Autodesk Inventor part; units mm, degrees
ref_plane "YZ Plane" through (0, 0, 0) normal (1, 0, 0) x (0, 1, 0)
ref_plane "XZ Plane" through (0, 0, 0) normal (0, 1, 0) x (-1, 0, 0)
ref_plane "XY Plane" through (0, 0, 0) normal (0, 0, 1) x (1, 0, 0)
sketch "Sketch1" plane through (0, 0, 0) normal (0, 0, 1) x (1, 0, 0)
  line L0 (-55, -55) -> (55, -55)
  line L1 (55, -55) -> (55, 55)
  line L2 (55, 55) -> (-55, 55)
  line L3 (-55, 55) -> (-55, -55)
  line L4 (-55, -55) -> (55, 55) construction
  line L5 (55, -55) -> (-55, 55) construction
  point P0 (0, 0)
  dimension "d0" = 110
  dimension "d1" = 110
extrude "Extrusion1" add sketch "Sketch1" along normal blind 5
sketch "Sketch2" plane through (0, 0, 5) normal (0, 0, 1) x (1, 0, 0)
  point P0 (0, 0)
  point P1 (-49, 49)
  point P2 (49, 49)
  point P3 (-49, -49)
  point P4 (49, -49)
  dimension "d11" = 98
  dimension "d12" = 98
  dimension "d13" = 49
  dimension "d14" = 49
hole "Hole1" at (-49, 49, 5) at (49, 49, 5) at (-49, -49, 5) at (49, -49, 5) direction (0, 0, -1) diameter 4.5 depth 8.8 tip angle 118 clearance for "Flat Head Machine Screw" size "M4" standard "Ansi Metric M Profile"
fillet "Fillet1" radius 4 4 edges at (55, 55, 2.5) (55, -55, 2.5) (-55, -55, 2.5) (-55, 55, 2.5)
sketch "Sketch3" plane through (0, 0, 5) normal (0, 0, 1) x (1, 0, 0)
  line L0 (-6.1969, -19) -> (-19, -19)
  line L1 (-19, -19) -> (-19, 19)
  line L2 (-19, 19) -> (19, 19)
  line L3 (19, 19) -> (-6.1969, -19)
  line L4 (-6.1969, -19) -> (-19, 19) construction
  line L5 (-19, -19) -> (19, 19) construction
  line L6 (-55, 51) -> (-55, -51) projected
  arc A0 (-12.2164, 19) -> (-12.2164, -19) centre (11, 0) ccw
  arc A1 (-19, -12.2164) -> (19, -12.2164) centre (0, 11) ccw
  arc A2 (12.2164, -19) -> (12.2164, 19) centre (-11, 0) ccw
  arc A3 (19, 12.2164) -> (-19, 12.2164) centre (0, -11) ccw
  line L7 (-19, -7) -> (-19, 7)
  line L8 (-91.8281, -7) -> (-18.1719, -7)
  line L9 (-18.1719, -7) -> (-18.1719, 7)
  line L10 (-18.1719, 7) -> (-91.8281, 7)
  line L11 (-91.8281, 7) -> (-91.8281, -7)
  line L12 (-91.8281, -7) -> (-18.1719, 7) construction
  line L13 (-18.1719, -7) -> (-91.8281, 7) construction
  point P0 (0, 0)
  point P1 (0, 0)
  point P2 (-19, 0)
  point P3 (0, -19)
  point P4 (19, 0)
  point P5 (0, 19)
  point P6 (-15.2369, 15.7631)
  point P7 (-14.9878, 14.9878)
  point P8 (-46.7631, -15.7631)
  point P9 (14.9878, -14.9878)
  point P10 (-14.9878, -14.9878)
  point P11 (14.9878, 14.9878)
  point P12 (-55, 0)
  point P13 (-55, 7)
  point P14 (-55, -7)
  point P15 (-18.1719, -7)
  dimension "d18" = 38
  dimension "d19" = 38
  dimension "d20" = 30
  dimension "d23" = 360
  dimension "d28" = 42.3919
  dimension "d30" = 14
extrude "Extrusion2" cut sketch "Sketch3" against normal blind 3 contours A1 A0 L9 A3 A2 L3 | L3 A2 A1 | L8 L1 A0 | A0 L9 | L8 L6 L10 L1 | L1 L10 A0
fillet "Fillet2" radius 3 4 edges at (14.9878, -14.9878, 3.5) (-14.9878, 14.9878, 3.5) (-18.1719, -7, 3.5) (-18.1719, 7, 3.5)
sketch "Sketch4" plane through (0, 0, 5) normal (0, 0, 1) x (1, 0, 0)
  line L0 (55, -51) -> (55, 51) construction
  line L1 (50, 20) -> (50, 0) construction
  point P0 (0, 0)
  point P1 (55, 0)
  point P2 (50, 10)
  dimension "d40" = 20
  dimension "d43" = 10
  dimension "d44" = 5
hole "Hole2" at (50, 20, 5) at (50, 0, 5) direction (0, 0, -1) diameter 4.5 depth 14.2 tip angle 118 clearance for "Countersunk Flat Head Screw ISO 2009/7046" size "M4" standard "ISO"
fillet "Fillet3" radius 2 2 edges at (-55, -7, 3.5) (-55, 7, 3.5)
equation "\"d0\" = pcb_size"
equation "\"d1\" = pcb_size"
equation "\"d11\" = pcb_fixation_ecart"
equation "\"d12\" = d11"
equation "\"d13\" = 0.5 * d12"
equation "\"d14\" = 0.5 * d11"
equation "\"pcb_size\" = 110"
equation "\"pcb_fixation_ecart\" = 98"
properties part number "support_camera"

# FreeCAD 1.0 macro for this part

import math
import FreeCAD as App
import Part
import Sketcher


def edges_at(feature, points):
    """Names of the edges that pass closest to the given points."""
    edges = feature.Shape.Edges
    near = lambda p: min(range(len(edges)), key=lambda i: edges[i].distToShape(Part.Vertex(*p))[0])
    return sorted({f"Edge{near(p) + 1}" for p in points})

doc = App.newDocument("Part")
params = doc.addObject("Spreadsheet::Sheet", "Params")
for row, (alias, value) in enumerate([
    ("sketch1_width", "110 mm"),
    ("pad1_length", "5 mm"),
    ("sketch2_diameter", "4.5 mm"),
    ("hole_diameter", "4.5 mm"),
    ("hole_depth", "8.8 mm"),
    ("fillet_radius", "4 mm"),
    ("sketch3_radius", "30 mm"),
    ("sketch3_height", "14 mm"),
    ("pocket1_length", "3 mm"),
    ("fillet2_radius", "3 mm"),
    ("sketch4_diameter", "4.5 mm"),
    ("hole2_diameter", "4.5 mm"),
    ("hole2_depth", "14.2 mm"),
    ("fillet3_radius", "2 mm"),
], start=1):
    params.set(f"A{row}", alias)
    params.set(f"B{row}", "=" + value)
    params.setAlias(f"B{row}", alias)

body = doc.addObject("PartDesign::Body", "Body")

# Sketch on XY plane
sketch1 = doc.addObject("Sketcher::SketchObject", "Sketch")
body.addObject(sketch1)
sketch1.AttachmentSupport = (doc.XY_Plane, [""])
sketch1.MapMode = "FlatFace"
sketch1.addGeometry([
    Part.LineSegment(App.Vector(-55, 55, 0), App.Vector(-55, -55, 0)),
    Part.LineSegment(App.Vector(-55, -55, 0), App.Vector(55, -55, 0)),
    Part.LineSegment(App.Vector(55, -55, 0), App.Vector(55, 55, 0)),
    Part.LineSegment(App.Vector(55, 55, 0), App.Vector(-55, 55, 0)),
], False)
sketch1.addConstraint([
    Sketcher.Constraint("Coincident", 0, 2, 1, 1),
    Sketcher.Constraint("Coincident", 1, 2, 2, 1),
    Sketcher.Constraint("Coincident", 2, 2, 3, 1),
    Sketcher.Constraint("Coincident", 3, 2, 0, 1),
    Sketcher.Constraint("Vertical", 0),
    Sketcher.Constraint("Horizontal", 1),
    Sketcher.Constraint("Vertical", 2),
    Sketcher.Constraint("Horizontal", 3),
    Sketcher.Constraint("Symmetric", 0, 2, 2, 2, -1, 1),
    Sketcher.Constraint("Equal", 3, 0),
    Sketcher.Constraint("DistanceX", 1, 1, 1, 2, 110.0),
])
sketch1.setExpression("Constraints[10]", "Params.sketch1_width")
pad1 = doc.addObject("PartDesign::Pad", "Pad")
body.addObject(pad1)
pad1.Profile = sketch1
pad1.setExpression("Length", "Params.pad1_length")

# Sketch on XY plane
sketch2 = doc.addObject("Sketcher::SketchObject", "Sketch001")
body.addObject(sketch2)
sketch2.AttachmentSupport = (doc.XY_Plane, [""])
sketch2.MapMode = "FlatFace"
sketch2.AttachmentOffset = App.Placement(App.Vector(0, 0, 5), App.Rotation())
sketch2.addGeometry([
    Part.Circle(App.Vector(-49, 49, 0), App.Vector(0, 0, 1), 2.2),
    Part.Circle(App.Vector(49, 49, 0), App.Vector(0, 0, 1), 2.2),
    Part.Circle(App.Vector(-49, -49, 0), App.Vector(0, 0, 1), 2.2),
    Part.Circle(App.Vector(49, -49, 0), App.Vector(0, 0, 1), 2.2),
], False)
sketch2.addConstraint([
    Sketcher.Constraint("Equal", 0, 1),
    Sketcher.Constraint("Equal", 1, 2),
    Sketcher.Constraint("Equal", 2, 3),
    Sketcher.Constraint("Symmetric", 1, 3, 2, 3, -1, 1),
    Sketcher.Constraint("Symmetric", 0, 3, 3, 3, -1, 1),
    Sketcher.Constraint("Symmetric", 0, 3, 1, 3, -2),
    Sketcher.Constraint("Diameter", 0, 4.5),
    Sketcher.Constraint("DistanceX", 0, 3, -1, 1, 49.0),
    Sketcher.Constraint("DistanceY", -1, 1, 0, 3, 49.0),
])
sketch2.setExpression("Constraints[6]", "Params.sketch2_diameter")
doc.recompute()
hole = doc.addObject("PartDesign::Hole", "Hole")
body.addObject(hole)
hole.Profile = sketch2
hole.ThreadType = "None"
hole.setExpression("Diameter", "Params.hole_diameter")
hole.DepthType = "Dimension"
hole.setExpression("Depth", "Params.hole_depth")
hole.DrillPoint = "Angled"
hole.DrillPointAngle = 118
doc.recompute()

fillet = doc.addObject("PartDesign::Fillet", "Fillet")
body.addObject(fillet)
fillet.Base = (hole, edges_at(hole, [
    (55, 55, 2.5),
    (55, -55, 2.5),
    (-55, -55, 2.5),
    (-55, 55, 2.5),
]))
fillet.setExpression("Radius", "Params.fillet_radius")

# Sketch on XY plane
sketch3 = doc.addObject("Sketcher::SketchObject", "Sketch002")
body.addObject(sketch3)
sketch3.AttachmentSupport = (doc.XY_Plane, [""])
sketch3.MapMode = "FlatFace"
sketch3.AttachmentOffset = App.Placement(App.Vector(0, 0, 5), App.Rotation())
sketch3.addGeometry([
    Part.ArcOfCircle(Part.Circle(App.Vector(0, 11, 0), App.Vector(0, 0, 1), 30), math.radians(-120), math.radians(-60)),  # 0
    Part.ArcOfCircle(Part.Circle(App.Vector(-11, 0, 0), App.Vector(0, 0, 1), 30), math.radians(-30), math.radians(30)),  # 1
    Part.ArcOfCircle(Part.Circle(App.Vector(0, -11, 0), App.Vector(0, 0, 1), 30), math.radians(60), math.radians(120)),  # 2
    Part.ArcOfCircle(Part.Circle(App.Vector(11, 0, 0), App.Vector(0, 0, 1), 30), math.radians(150.03), math.radians(166.51)),  # 3
    Part.LineSegment(App.Vector(-18, 7, 0), App.Vector(-55, 7, 0)),  # 4
    Part.LineSegment(App.Vector(-55, 7, 0), App.Vector(-55, -7, 0)),  # 5
    Part.LineSegment(App.Vector(-55, -7, 0), App.Vector(-18, -7, 0)),  # 6
    Part.ArcOfCircle(Part.Circle(App.Vector(11, 0, 0), App.Vector(0, 0, 1), 30), math.radians(-166.51), math.radians(-150.03)),  # 7
], False)
sketch3.addConstraint([
    Sketcher.Constraint("Coincident", 0, 2, 1, 1),
    Sketcher.Constraint("Coincident", 1, 2, 2, 1),
    Sketcher.Constraint("Coincident", 2, 2, 3, 1),
    Sketcher.Constraint("Coincident", 3, 2, 4, 1),
    Sketcher.Constraint("Coincident", 4, 2, 5, 1),
    Sketcher.Constraint("Coincident", 5, 2, 6, 1),
    Sketcher.Constraint("Coincident", 6, 2, 7, 1),
    Sketcher.Constraint("Coincident", 7, 2, 0, 1),
    Sketcher.Constraint("Horizontal", 4),
    Sketcher.Constraint("Vertical", 5),
    Sketcher.Constraint("Horizontal", 6),
    Sketcher.Constraint("Coincident", 7, 3, 3, 3),
    Sketcher.Constraint("Equal", 0, 1),
    Sketcher.Constraint("Equal", 1, 2),
    Sketcher.Constraint("Equal", 2, 3),
    Sketcher.Constraint("Equal", 3, 7),
    Sketcher.Constraint("Symmetric", 0, 3, 2, 3, -1, 1),
    Sketcher.Constraint("Symmetric", 1, 3, 3, 3, -1, 1),
    Sketcher.Constraint("Symmetric", 1, 2, 2, 2, -2),
    Sketcher.Constraint("Vertical", 3, 2, 6, 2),
    Sketcher.Constraint("Radius", 0, 30.0),
    Sketcher.Constraint("DistanceY", 5, 2, 5, 1, 14.0),
    Sketcher.Constraint("DistanceY", -1, 1, 0, 3, 11.0),
    Sketcher.Constraint("DistanceX", 1, 3, -1, 1, 11.0),
    Sketcher.Constraint("DistanceX", 4, 2, -1, 1, 55.0),
])
sketch3.setExpression("Constraints[20]", "Params.sketch3_radius")
sketch3.setExpression("Constraints[21]", "Params.sketch3_height")
pocket1 = doc.addObject("PartDesign::Pocket", "Pocket")
body.addObject(pocket1)
pocket1.Profile = sketch3
pocket1.setExpression("Length", "Params.pocket1_length")
doc.recompute()

fillet2 = doc.addObject("PartDesign::Fillet", "Fillet001")
body.addObject(fillet2)
fillet2.Base = (pocket1, edges_at(pocket1, [
    (14.988, -14.988, 3.5),
    (-14.988, 14.988, 3.5),
    (-18.172, -7, 3.5),
    (-18.172, 7, 3.5),
]))
fillet2.setExpression("Radius", "Params.fillet2_radius")

# Sketch on XY plane
sketch4 = doc.addObject("Sketcher::SketchObject", "Sketch003")
body.addObject(sketch4)
sketch4.AttachmentSupport = (doc.XY_Plane, [""])
sketch4.MapMode = "FlatFace"
sketch4.AttachmentOffset = App.Placement(App.Vector(0, 0, 5), App.Rotation())
sketch4.addGeometry([
    Part.Circle(App.Vector(50, 20, 0), App.Vector(0, 0, 1), 2.2),
    Part.Circle(App.Vector(50, 0, 0), App.Vector(0, 0, 1), 2.2),
], False)
sketch4.addConstraint([
    Sketcher.Constraint("Equal", 0, 1),
    Sketcher.Constraint("PointOnObject", 1, 3, -1),
    Sketcher.Constraint("Vertical", 0, 3, 1, 3),
    Sketcher.Constraint("Diameter", 0, 4.5),
    Sketcher.Constraint("DistanceX", -1, 1, 0, 3, 50.0),
    Sketcher.Constraint("DistanceY", -1, 1, 0, 3, 20.0),
])
sketch4.setExpression("Constraints[3]", "Params.sketch4_diameter")
doc.recompute()
hole2 = doc.addObject("PartDesign::Hole", "Hole001")
body.addObject(hole2)
hole2.Profile = sketch4
hole2.ThreadType = "None"
hole2.setExpression("Diameter", "Params.hole2_diameter")
hole2.DepthType = "Dimension"
hole2.setExpression("Depth", "Params.hole2_depth")
hole2.DrillPoint = "Angled"
hole2.DrillPointAngle = 118
doc.recompute()

fillet3 = doc.addObject("PartDesign::Fillet", "Fillet002")
body.addObject(fillet3)
fillet3.Base = (hole2, edges_at(hole2, [(-55, -7, 3.5), (-55, 7, 3.5)]))
fillet3.setExpression("Radius", "Params.fillet3_radius")

doc.recompute()
